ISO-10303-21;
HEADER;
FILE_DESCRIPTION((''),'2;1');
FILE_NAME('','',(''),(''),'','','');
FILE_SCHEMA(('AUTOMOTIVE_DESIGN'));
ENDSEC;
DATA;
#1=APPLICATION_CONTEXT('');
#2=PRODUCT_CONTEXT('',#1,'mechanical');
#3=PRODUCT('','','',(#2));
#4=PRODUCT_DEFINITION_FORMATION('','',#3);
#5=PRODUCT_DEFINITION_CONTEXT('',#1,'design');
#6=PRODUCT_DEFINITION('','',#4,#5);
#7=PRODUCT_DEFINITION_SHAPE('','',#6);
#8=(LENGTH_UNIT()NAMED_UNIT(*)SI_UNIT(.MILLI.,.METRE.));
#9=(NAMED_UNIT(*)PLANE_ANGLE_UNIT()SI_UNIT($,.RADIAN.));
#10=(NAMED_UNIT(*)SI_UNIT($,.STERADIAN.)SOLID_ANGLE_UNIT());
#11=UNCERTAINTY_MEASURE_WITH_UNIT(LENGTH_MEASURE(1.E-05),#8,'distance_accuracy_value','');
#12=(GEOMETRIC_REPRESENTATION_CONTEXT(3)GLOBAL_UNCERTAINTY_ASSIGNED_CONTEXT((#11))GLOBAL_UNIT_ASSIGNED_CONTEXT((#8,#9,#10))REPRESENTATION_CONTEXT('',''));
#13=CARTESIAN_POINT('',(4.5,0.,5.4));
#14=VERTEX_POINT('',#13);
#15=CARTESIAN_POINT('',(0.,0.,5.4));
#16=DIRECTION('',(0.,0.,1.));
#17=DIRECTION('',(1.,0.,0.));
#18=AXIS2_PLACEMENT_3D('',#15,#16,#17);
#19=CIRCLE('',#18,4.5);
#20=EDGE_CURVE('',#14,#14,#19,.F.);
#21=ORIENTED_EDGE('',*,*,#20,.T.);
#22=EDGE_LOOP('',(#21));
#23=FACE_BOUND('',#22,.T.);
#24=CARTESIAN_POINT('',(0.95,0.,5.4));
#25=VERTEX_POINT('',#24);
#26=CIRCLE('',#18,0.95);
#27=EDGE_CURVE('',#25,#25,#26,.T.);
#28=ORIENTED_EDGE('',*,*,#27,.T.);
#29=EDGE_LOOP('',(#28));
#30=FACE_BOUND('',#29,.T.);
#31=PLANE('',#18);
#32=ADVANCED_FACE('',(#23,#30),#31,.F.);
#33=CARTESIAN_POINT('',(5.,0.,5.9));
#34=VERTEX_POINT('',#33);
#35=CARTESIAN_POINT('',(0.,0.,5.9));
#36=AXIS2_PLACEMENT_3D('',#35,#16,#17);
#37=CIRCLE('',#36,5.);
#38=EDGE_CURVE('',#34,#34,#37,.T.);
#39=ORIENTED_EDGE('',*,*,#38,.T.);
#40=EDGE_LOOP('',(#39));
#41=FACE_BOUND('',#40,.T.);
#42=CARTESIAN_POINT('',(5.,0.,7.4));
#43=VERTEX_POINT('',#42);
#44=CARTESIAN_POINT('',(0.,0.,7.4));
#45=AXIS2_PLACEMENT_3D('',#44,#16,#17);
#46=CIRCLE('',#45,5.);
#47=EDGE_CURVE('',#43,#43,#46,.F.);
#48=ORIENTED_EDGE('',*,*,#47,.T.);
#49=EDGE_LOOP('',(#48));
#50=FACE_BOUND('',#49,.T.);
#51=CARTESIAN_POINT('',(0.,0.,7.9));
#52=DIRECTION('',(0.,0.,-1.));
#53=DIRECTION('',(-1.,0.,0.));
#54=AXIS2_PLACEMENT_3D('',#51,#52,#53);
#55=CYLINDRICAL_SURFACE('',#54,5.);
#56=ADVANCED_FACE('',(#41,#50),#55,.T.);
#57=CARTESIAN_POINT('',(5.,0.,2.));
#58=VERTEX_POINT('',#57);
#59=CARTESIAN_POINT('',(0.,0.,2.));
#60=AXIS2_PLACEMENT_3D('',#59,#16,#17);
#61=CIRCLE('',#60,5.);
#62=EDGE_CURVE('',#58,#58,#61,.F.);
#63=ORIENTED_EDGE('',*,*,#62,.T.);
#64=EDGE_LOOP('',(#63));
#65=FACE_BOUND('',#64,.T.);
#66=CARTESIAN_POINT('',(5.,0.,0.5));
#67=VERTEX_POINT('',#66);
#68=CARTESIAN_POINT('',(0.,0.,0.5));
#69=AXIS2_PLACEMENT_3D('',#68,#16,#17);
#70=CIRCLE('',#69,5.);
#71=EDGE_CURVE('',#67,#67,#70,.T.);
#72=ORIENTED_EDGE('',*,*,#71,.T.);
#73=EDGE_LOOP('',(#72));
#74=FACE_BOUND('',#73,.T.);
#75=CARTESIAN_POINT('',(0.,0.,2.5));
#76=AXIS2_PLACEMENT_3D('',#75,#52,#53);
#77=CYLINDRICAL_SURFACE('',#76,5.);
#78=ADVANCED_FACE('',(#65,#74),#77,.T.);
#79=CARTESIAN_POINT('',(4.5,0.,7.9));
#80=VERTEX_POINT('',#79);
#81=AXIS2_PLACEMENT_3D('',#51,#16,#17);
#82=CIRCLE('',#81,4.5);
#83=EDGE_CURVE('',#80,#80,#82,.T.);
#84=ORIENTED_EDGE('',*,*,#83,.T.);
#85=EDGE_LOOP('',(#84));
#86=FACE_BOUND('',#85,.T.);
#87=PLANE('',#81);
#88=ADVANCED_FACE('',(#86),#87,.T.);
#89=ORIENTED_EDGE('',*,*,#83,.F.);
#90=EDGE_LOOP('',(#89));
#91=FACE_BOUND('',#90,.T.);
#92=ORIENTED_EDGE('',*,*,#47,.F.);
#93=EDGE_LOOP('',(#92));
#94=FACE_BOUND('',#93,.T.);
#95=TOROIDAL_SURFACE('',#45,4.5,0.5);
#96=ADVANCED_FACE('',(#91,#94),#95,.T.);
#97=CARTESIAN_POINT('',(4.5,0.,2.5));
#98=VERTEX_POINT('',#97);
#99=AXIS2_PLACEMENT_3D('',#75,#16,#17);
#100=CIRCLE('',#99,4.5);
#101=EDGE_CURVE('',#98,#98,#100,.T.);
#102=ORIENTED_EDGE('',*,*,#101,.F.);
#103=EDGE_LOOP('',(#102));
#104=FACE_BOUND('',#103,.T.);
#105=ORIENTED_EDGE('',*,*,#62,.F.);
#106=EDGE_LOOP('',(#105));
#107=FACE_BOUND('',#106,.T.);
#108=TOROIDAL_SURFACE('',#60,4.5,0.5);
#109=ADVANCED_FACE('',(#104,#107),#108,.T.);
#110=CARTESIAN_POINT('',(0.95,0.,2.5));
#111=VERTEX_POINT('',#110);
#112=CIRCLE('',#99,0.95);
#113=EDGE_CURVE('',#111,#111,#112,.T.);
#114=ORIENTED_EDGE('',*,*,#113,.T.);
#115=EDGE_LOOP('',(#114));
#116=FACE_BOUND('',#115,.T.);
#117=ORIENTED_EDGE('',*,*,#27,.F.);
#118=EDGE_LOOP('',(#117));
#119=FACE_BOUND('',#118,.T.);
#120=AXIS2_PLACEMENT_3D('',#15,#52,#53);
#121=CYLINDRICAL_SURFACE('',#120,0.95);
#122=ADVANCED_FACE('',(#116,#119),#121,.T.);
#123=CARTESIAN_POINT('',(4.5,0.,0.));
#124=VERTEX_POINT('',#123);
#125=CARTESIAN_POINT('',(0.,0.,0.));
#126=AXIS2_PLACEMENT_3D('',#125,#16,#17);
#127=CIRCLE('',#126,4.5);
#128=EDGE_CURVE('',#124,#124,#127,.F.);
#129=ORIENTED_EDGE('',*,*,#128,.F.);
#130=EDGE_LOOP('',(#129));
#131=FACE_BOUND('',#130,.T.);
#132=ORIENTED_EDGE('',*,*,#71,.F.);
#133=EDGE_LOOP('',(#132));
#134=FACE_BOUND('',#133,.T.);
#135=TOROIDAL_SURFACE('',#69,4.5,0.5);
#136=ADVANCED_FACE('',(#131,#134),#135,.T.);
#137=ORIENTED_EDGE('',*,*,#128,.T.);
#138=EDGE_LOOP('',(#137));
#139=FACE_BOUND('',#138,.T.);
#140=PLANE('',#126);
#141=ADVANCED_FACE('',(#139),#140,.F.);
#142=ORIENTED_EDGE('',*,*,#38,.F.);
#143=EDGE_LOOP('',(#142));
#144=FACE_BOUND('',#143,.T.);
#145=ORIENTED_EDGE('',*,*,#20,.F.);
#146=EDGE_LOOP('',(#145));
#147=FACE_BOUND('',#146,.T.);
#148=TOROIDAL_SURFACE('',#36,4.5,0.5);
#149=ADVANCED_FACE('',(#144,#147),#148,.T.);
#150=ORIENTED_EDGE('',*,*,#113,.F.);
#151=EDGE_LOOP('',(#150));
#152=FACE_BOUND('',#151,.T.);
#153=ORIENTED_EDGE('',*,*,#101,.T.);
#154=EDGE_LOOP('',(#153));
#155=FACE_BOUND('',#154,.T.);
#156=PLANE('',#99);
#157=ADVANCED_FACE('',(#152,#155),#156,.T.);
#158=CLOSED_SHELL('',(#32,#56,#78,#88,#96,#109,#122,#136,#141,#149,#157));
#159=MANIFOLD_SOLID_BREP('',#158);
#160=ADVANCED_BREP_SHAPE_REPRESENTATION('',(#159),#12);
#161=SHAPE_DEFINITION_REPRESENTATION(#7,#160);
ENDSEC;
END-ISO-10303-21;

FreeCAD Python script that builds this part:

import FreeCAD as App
import Part
import Sketcher

V = App.Vector
Q = App.Units.Quantity


def edges_at(feature, points):
    """Names of the edges that pass closest to the given points."""
    edges = feature.Shape.Edges
    near = lambda p: min(range(len(edges)), key=lambda i: edges[i].distToShape(Part.Vertex(*p))[0])
    return sorted({f"Edge{near(p) + 1}" for p in points})

doc = App.newDocument("Part")
body = doc.addObject("PartDesign::Body", "Body")

# Sketch on XY plane
sketch1 = body.newObject("Sketcher::SketchObject", "Sketch")
sketch1.AttachmentSupport = (doc.getObject("XY_Plane"), [""])
sketch1.MapMode = "FlatFace"
sketch1.addGeometry(Part.Circle(V(0, 0, 0), V(0, 0, 1), 5), False)
sketch1.addConstraint(Sketcher.Constraint("Coincident", 0, 3, -1, 1))
sketch1.addConstraint(Sketcher.Constraint("Diameter", 0, Q("10 mm")))
pad1 = body.newObject("PartDesign::Pad", "Pad")
pad1.Profile = sketch1
pad1.Length = 2.5
doc.recompute()

fillet = body.newObject("PartDesign::Fillet", "Fillet")
fillet.Base = (pad1, edges_at(pad1, [(-5, 0, 0)]))
fillet.Radius = 0.5
doc.recompute()

fillet2 = body.newObject("PartDesign::Fillet", "Fillet001")
fillet2.Base = (fillet, edges_at(fillet, [(-5, 0, 2.5)]))
fillet2.Radius = 0.5

# Sketch on XY plane
sketch2 = body.newObject("Sketcher::SketchObject", "Sketch001")
sketch2.AttachmentSupport = (doc.getObject("XY_Plane"), [""])
sketch2.MapMode = "FlatFace"
sketch2.AttachmentOffset = App.Placement(V(0, 0, 2.5), App.Rotation())
sketch2.addGeometry(Part.Circle(V(0, 0, 0), V(0, 0, 1), 0.9), False)
sketch2.addConstraint(Sketcher.Constraint("Coincident", 0, 3, -1, 1))
sketch2.addConstraint(Sketcher.Constraint("Diameter", 0, Q("1.9 mm")))
pad2 = body.newObject("PartDesign::Pad", "Pad001")
pad2.Profile = sketch2
pad2.Length = 2.9

# Sketch on XY plane
sketch3 = body.newObject("Sketcher::SketchObject", "Sketch002")
sketch3.AttachmentSupport = (doc.getObject("XY_Plane"), [""])
sketch3.MapMode = "FlatFace"
sketch3.AttachmentOffset = App.Placement(V(0, 0, 5.4), App.Rotation())
sketch3.addGeometry(Part.Circle(V(0, 0, 0), V(0, 0, 1), 5), False)
sketch3.addConstraint(Sketcher.Constraint("Coincident", 0, 3, -1, 1))
sketch3.addConstraint(Sketcher.Constraint("Diameter", 0, Q("10 mm")))
pad3 = body.newObject("PartDesign::Pad", "Pad002")
pad3.Profile = sketch3
pad3.Length = 2.5
doc.recompute()

fillet3 = body.newObject("PartDesign::Fillet", "Fillet002")
fillet3.Base = (pad3, edges_at(pad3, [(-5, 0, 5.4), (-5, 0, 7.9)]))
fillet3.Radius = 0.5

doc.recompute()
